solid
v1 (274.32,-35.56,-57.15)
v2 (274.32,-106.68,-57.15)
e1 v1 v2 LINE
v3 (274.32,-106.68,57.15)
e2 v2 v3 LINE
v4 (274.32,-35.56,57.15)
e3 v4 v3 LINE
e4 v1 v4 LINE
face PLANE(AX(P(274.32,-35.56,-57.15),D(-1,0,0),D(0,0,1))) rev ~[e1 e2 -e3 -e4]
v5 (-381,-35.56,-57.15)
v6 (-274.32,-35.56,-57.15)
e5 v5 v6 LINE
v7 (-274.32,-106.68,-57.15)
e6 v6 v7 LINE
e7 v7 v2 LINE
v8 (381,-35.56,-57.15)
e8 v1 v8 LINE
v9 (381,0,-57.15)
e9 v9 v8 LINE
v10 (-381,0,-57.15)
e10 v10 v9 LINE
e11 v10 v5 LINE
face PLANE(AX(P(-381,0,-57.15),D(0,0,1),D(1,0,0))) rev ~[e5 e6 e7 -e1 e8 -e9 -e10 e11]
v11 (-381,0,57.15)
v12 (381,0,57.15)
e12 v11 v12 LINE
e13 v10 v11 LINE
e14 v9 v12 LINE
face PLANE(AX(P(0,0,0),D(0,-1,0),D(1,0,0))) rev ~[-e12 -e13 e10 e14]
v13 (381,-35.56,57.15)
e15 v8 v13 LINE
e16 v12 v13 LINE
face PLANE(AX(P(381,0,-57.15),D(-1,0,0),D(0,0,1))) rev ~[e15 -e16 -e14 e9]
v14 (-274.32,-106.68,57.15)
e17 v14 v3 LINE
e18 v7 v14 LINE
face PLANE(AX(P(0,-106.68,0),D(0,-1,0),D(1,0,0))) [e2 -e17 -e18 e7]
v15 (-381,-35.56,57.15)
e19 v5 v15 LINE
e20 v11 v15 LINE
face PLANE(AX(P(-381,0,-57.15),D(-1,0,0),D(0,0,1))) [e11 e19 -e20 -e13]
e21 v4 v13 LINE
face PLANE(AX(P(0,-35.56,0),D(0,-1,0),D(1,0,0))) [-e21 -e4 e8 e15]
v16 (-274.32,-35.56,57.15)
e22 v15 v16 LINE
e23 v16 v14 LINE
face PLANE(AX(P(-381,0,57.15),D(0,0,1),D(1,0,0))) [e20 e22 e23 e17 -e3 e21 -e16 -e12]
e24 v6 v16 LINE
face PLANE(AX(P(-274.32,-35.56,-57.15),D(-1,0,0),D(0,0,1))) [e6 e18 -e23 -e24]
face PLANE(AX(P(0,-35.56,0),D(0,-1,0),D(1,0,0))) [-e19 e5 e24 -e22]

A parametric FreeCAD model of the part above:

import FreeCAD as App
import Part
import Sketcher
Q = App.Units.Quantity


def add_polygon(sketch, points):
    """Adds a closed chain of lines whose ends are joined by coincident constraints."""
    first, n = sketch.GeometryCount, len(points)
    for a, b in zip(points, points[1:] + points[:1]):
        sketch.addGeometry(Part.LineSegment(App.Vector(*a, 0), App.Vector(*b, 0)), False)
    for i in range(n):
        sketch.addConstraint(Sketcher.Constraint("Coincident", first + i, 2, first + (i + 1) % n, 1))

doc = App.newDocument("Part")
params = doc.addObject("Spreadsheet::Sheet", "Params")
for row, (alias, value) in enumerate([
    ("sketch1_width", "30 in"),
    ("sketch1_height", "4.5 in"),
    ("pad1_length", "1.4 in"),
    ("sketch2_width", "21.6 in"),
    ("sketch2_height", "4.5 in"),
    ("pad2_length", "2.8 in"),
], start=1):
    params.set(f"A{row}", alias)
    params.set(f"B{row}", "=" + value)
    params.setAlias(f"B{row}", alias)

body = doc.addObject("PartDesign::Body", "Body")

# Sketch on XZ plane
sketch1 = body.newObject("Sketcher::SketchObject", "Sketch")
sketch1.AttachmentSupport = (doc.getObject("XZ_Plane"), [""])
sketch1.MapMode = "FlatFace"
add_polygon(sketch1, [(-381, 57), (-381, -57), (381, -57), (381, 57)])  # lines 0-3
sketch1.addConstraint(Sketcher.Constraint("Vertical", 0))
sketch1.addConstraint(Sketcher.Constraint("Horizontal", 1))
sketch1.addConstraint(Sketcher.Constraint("Vertical", 2))
sketch1.addConstraint(Sketcher.Constraint("Horizontal", 3))
sketch1.addConstraint(Sketcher.Constraint("Symmetric", 0, 2, 2, 2, -1, 1))
sketch1.addConstraint(Sketcher.Constraint("DistanceX", 1, 1, 1, 2, Q("30 in")))
sketch1.addConstraint(Sketcher.Constraint("DistanceY", 0, 2, 0, 1, Q("4.5 in")))
sketch1.setExpression("Constraints[9]", "Params.sketch1_width")
sketch1.setExpression("Constraints[10]", "Params.sketch1_height")
pad1 = body.newObject("PartDesign::Pad", "Pad")
pad1.Profile = sketch1
pad1.setExpression("Length", "Params.pad1_length")

# Sketch on XZ plane
sketch2 = body.newObject("Sketcher::SketchObject", "Sketch001")
sketch2.AttachmentSupport = (doc.getObject("XZ_Plane"), [""])
sketch2.MapMode = "FlatFace"
sketch2.AttachmentOffset = App.Placement(App.Vector(0, 0, 1.4 * 25.4), App.Rotation())
add_polygon(sketch2, [(-274, 57), (-274, -57), (274, -57), (274, 57)])  # lines 0-3
sketch2.addConstraint(Sketcher.Constraint("Vertical", 0))
sketch2.addConstraint(Sketcher.Constraint("Horizontal", 1))
sketch2.addConstraint(Sketcher.Constraint("Vertical", 2))
sketch2.addConstraint(Sketcher.Constraint("Horizontal", 3))
sketch2.addConstraint(Sketcher.Constraint("Symmetric", 0, 2, 2, 2, -1, 1))
sketch2.addConstraint(Sketcher.Constraint("DistanceX", 1, 1, 1, 2, Q("21.6 in")))
sketch2.addConstraint(Sketcher.Constraint("DistanceY", 0, 2, 0, 1, Q("4.5 in")))
sketch2.setExpression("Constraints[9]", "Params.sketch2_width")
sketch2.setExpression("Constraints[10]", "Params.sketch2_height")
pad2 = body.newObject("PartDesign::Pad", "Pad001")
pad2.Profile = sketch2
pad2.setExpression("Length", "Params.pad2_length")

doc.recompute()
